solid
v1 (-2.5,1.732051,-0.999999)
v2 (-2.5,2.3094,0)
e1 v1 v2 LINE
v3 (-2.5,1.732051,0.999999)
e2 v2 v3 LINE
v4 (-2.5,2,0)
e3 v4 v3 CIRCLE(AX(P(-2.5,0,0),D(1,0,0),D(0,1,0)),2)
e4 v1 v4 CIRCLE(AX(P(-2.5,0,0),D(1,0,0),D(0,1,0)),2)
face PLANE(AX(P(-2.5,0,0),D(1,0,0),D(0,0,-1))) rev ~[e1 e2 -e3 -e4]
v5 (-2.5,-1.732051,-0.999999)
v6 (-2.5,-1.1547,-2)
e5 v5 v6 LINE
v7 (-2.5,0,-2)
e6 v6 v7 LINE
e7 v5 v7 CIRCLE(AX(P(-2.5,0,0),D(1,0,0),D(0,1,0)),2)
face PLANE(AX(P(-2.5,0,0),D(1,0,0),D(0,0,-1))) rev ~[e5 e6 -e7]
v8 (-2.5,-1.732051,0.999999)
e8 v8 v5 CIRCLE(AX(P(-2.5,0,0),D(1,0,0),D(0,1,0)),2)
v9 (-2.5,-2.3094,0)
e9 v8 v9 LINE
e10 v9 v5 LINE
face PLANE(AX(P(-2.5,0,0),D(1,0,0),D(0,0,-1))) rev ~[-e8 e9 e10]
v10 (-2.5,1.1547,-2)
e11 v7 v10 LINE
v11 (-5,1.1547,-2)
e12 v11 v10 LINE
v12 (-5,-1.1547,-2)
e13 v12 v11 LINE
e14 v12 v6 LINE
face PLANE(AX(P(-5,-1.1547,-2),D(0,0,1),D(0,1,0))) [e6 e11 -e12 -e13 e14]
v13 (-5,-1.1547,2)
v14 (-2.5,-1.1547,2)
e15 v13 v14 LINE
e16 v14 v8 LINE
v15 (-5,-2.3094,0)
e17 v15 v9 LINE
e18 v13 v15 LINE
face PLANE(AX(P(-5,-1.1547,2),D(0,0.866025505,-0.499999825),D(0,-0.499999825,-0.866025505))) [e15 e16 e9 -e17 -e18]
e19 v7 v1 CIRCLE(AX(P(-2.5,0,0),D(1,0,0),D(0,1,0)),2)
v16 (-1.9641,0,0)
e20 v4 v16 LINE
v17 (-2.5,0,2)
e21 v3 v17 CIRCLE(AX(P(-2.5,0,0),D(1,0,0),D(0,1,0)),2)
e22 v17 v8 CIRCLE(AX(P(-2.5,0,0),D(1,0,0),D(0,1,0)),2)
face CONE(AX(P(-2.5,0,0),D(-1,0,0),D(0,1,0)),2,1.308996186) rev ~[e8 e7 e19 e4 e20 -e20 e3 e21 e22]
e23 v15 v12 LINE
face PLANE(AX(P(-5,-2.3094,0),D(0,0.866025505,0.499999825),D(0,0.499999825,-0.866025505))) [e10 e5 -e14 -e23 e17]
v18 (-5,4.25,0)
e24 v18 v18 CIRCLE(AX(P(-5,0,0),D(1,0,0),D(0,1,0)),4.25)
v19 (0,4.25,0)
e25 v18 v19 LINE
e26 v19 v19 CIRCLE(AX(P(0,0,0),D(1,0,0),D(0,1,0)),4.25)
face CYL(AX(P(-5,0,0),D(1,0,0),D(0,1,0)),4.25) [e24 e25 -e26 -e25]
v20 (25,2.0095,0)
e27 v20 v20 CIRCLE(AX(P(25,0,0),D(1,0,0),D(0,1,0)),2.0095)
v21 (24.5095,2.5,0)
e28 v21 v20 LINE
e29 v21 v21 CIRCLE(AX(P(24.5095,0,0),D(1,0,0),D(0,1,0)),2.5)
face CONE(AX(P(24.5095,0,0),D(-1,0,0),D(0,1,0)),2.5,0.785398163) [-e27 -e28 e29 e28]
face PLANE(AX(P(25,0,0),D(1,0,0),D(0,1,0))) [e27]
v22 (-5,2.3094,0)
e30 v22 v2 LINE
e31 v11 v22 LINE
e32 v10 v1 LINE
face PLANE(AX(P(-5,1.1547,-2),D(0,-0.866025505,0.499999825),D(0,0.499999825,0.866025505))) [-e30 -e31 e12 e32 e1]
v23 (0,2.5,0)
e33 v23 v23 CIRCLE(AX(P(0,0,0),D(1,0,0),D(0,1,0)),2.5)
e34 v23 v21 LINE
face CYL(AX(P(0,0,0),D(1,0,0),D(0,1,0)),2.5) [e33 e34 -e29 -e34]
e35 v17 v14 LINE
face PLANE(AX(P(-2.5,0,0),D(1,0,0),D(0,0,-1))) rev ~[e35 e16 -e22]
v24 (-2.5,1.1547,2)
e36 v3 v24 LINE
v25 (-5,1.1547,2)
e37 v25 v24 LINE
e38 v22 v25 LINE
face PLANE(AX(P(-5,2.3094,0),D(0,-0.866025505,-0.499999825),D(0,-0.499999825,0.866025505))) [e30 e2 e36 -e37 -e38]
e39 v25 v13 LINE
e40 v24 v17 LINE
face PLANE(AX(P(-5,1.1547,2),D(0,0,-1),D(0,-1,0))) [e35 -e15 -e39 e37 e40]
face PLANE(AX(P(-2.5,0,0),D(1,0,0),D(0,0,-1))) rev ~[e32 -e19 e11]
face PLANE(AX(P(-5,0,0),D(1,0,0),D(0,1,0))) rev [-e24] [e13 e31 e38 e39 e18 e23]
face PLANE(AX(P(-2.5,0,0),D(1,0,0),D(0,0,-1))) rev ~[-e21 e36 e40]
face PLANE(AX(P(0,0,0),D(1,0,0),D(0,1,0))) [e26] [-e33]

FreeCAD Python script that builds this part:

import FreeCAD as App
import Part
import Sketcher
from FreeCAD import Vector
Q = App.Units.Quantity

doc = App.newDocument("Part")
params = doc.addObject("Spreadsheet::Sheet", "Params")
for row, (alias, value) in enumerate([
    ("sketch1_width", "30 mm"),
    ("sketch1_width2", "5 mm"),
    ("sketch1_height", "1.75 mm"),
    ("sketch1_height2", "4.25 mm"),
    ("revolution_angle", "360 deg"),
    ("sketch2_height", "2 mm"),
    ("sketch2_width", "2.5 mm"),
    ("groove_angle", "360 deg"),
    ("pocket1_length", "2.5 mm"),
], start=1):
    params.set(f"A{row}", alias)
    params.set(f"B{row}", "=" + value)
    params.setAlias(f"B{row}", alias)

body = doc.addObject("PartDesign::Body", "Body")

sketch1 = body.newObject("Sketcher::SketchObject", "Sketch")
sketch1.AttachmentSupport = (doc.getObject("XY_Plane"), [""])
sketch1.MapMode = "FlatFace"
sketch1.addGeometry([
    Part.LineSegment(Vector(-5, 0, 0), Vector(25, 0, 0)),
    Part.LineSegment(Vector(25, 0, 0), Vector(25, 2, 0)),
    Part.LineSegment(Vector(25, 2, 0), Vector(24.5, 2.5, 0)),
    Part.LineSegment(Vector(24.5, 2.5, 0), Vector(0, 2.5, 0)),
    Part.LineSegment(Vector(0, 2.5, 0), Vector(0, 4.2, 0)),
    Part.LineSegment(Vector(0, 4.2, 0), Vector(-5, 4.2, 0)),
    Part.LineSegment(Vector(-5, 4.2, 0), Vector(-5, 0, 0)),
], False)
sketch1.addConstraint([
    Sketcher.Constraint("Coincident", 0, 2, 1, 1),
    Sketcher.Constraint("Coincident", 1, 2, 2, 1),
    Sketcher.Constraint("Coincident", 2, 2, 3, 1),
    Sketcher.Constraint("Coincident", 3, 2, 4, 1),
    Sketcher.Constraint("Coincident", 4, 2, 5, 1),
    Sketcher.Constraint("Coincident", 5, 2, 6, 1),
    Sketcher.Constraint("Coincident", 6, 2, 0, 1),
    Sketcher.Constraint("Horizontal", 0),
    Sketcher.Constraint("Vertical", 1),
    Sketcher.Constraint("Horizontal", 3),
    Sketcher.Constraint("Vertical", 4),
    Sketcher.Constraint("Horizontal", 5),
    Sketcher.Constraint("Vertical", 6),
    Sketcher.Constraint("PointOnObject", 0, 2, -1),
    Sketcher.Constraint("PointOnObject", 3, 2, -2),
    Sketcher.Constraint("DistanceX", 0, 1, 0, 2, Q("30 mm")),
    Sketcher.Constraint("DistanceX", 5, 2, 5, 1, Q("5 mm")),
    Sketcher.Constraint("Angle", 2, Q("135 deg")),
    Sketcher.Constraint("DistanceY", 4, 1, 4, 2, Q("1.75 mm")),
    Sketcher.Constraint("DistanceY", 6, 2, 6, 1, Q("4.25 mm")),
    Sketcher.Constraint("DistanceX", 3, 2, 3, 1, Q("24.5095 mm")),
])
sketch1.setExpression("Constraints[15]", "Params.sketch1_width")
sketch1.setExpression("Constraints[16]", "Params.sketch1_width2")
sketch1.setExpression("Constraints[18]", "Params.sketch1_height")
sketch1.setExpression("Constraints[19]", "Params.sketch1_height2")
revolution = body.newObject("PartDesign::Revolution", "Revolution")
revolution.Profile = sketch1
revolution.ReferenceAxis = (sketch1, ["H_Axis"])
revolution.setExpression("Angle", "Params.revolution_angle")

sketch2 = body.newObject("Sketcher::SketchObject", "Sketch001")
sketch2.AttachmentSupport = (doc.getObject("XY_Plane"), [""])
sketch2.MapMode = "FlatFace"
sketch2.addGeometry([
    Part.LineSegment(Vector(-5, 0, 0), Vector(-2, 0, 0)),
    Part.LineSegment(Vector(-2, 0, 0), Vector(-2.5, 2, 0)),
    Part.LineSegment(Vector(-2.5, 2, 0), Vector(-5, 2, 0)),
    Part.LineSegment(Vector(-5, 2, 0), Vector(-5, 0, 0)),
], False)
sketch2.addConstraint([
    Sketcher.Constraint("Coincident", 0, 2, 1, 1),
    Sketcher.Constraint("Coincident", 1, 2, 2, 1),
    Sketcher.Constraint("Coincident", 2, 2, 3, 1),
    Sketcher.Constraint("Coincident", 3, 2, 0, 1),
    Sketcher.Constraint("Horizontal", 0),
    Sketcher.Constraint("Horizontal", 2),
    Sketcher.Constraint("Vertical", 3),
    Sketcher.Constraint("PointOnObject", 0, 2, -1),
    Sketcher.Constraint("DistanceY", 3, 2, 3, 1, Q("2 mm")),
    Sketcher.Constraint("Angle", 1, Q("105 deg")),
    Sketcher.Constraint("DistanceX", 2, 2, 2, 1, Q("2.5 mm")),
    Sketcher.Constraint("DistanceX", 2, 2, -1, 1, Q("5 mm")),
])
sketch2.setExpression("Constraints[8]", "Params.sketch2_height")
sketch2.setExpression("Constraints[10]", "Params.sketch2_width")
groove = body.newObject("PartDesign::Groove", "Groove")
groove.Profile = sketch2
groove.ReferenceAxis = (sketch2, ["H_Axis"])
groove.setExpression("Angle", "Params.groove_angle")

sketch3 = body.newObject("Sketcher::SketchObject", "Sketch002")
sketch3.AttachmentSupport = (doc.getObject("YZ_Plane"), [""])
sketch3.MapMode = "FlatFace"
sketch3.AttachmentOffset = App.Placement(Vector(0, 0, -5), App.Rotation())
sketch3.addGeometry([
    Part.LineSegment(Vector(2.3, 0, 0), Vector(1.2, 2, 0)),
    Part.LineSegment(Vector(1.2, 2, 0), Vector(-1.2, 2, 0)),
    Part.LineSegment(Vector(-1.2, 2, 0), Vector(-2.3, 0, 0)),
    Part.LineSegment(Vector(-2.3, 0, 0), Vector(-1.2, -2, 0)),
    Part.LineSegment(Vector(-1.2, -2, 0), Vector(1.2, -2, 0)),
    Part.LineSegment(Vector(1.2, -2, 0), Vector(2.3, 0, 0)),
], False)
sketch3.addConstraint([
    Sketcher.Constraint("Coincident", 0, 2, 1, 1),
    Sketcher.Constraint("Coincident", 1, 2, 2, 1),
    Sketcher.Constraint("Coincident", 2, 2, 3, 1),
    Sketcher.Constraint("Coincident", 3, 2, 4, 1),
    Sketcher.Constraint("Coincident", 4, 2, 5, 1),
    Sketcher.Constraint("Coincident", 5, 2, 0, 1),
    Sketcher.Constraint("Horizontal", 1),
    Sketcher.Constraint("Horizontal", 4),
    Sketcher.Constraint("Symmetric", 0, 2, 3, 2, -1, 1),
    Sketcher.Constraint("Symmetric", 2, 2, 5, 2, -1, 1),
    Sketcher.Constraint("PointOnObject", 2, 2, -1),
    Sketcher.Constraint("Parallel", 2, 5),
    Sketcher.Constraint("Vertical", 1, 2, 3, 2),
    Sketcher.Constraint("Angle", 0, Q("120 deg")),
    Sketcher.Constraint("DistanceY", -1, 1, 0, 2, Q("2 mm")),
    Sketcher.Constraint("DistanceX", 1, 2, 1, 1, Q("2.3094 mm")),
])
pocket1 = body.newObject("PartDesign::Pocket", "Pocket")
pocket1.Profile = sketch3
pocket1.setExpression("Length", "Params.pocket1_length")
pocket1.Reversed = True

doc.recompute()
